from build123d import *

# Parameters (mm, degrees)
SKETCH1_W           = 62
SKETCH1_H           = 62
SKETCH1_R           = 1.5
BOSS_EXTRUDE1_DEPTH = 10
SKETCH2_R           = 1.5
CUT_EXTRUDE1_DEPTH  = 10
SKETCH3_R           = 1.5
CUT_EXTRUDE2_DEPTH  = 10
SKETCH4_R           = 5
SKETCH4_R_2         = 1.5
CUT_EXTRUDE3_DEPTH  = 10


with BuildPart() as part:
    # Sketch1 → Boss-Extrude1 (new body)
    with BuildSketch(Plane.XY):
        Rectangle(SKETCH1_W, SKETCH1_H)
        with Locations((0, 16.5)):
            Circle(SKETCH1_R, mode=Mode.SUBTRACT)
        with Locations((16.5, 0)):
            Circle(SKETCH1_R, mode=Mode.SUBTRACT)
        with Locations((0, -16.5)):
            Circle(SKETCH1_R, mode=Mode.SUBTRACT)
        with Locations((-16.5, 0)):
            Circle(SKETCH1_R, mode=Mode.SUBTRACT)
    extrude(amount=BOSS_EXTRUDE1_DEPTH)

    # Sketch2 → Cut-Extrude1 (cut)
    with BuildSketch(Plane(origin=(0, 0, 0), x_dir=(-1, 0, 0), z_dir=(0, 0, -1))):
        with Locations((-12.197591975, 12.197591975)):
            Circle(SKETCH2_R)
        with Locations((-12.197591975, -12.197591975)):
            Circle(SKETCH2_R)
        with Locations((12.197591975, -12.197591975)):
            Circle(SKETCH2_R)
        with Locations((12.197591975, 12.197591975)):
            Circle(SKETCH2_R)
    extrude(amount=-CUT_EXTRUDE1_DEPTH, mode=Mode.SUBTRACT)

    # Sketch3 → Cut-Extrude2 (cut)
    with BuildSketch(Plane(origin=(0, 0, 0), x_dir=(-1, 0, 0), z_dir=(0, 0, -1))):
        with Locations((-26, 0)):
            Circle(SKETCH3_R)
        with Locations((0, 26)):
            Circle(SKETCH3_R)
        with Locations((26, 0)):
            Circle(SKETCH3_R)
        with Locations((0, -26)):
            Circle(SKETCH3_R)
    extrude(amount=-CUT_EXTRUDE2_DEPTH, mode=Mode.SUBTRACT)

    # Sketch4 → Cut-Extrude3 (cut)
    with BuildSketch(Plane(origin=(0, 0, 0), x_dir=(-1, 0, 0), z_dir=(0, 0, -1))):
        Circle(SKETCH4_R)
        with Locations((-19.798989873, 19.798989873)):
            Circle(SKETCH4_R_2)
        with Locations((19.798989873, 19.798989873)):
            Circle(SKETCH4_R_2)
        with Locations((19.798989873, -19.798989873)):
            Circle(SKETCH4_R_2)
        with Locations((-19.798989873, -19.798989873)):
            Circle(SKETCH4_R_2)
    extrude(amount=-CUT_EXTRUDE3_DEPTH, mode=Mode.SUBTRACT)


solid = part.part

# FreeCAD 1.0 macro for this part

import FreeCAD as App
import Part
import Sketcher

V = App.Vector

doc = App.newDocument("Part")
body = doc.addObject("PartDesign::Body", "Body")

sketch1 = body.newObject("Sketcher::SketchObject", "Sketch")
sketch1.AttachmentSupport = (doc.getObject("XY_Plane"), [""])
sketch1.MapMode = "FlatFace"
sketch1.addGeometry(Part.LineSegment(V(-31, 31, 0), V(-31, -31, 0)), False)
sketch1.addGeometry(Part.LineSegment(V(-31, -31, 0), V(31, -31, 0)), False)
sketch1.addGeometry(Part.LineSegment(V(31, -31, 0), V(31, 31, 0)), False)
sketch1.addGeometry(Part.LineSegment(V(31, 31, 0), V(-31, 31, 0)), False)
sketch1.addGeometry(Part.Circle(V(0, -16.5, 0), V(0, 0, 1), 1.5), False)
sketch1.addGeometry(Part.Circle(V(-16.5, 0, 0), V(0, 0, 1), 1.5), False)
sketch1.addGeometry(Part.Circle(V(16.5, 0, 0), V(0, 0, 1), 1.5), False)
sketch1.addGeometry(Part.Circle(V(0, 16.5, 0), V(0, 0, 1), 1.5), False)
sketch1.addConstraint(Sketcher.Constraint("Coincident", 0, 2, 1, 1))
sketch1.addConstraint(Sketcher.Constraint("Coincident", 1, 2, 2, 1))
sketch1.addConstraint(Sketcher.Constraint("Coincident", 2, 2, 3, 1))
sketch1.addConstraint(Sketcher.Constraint("Coincident", 3, 2, 0, 1))
sketch1.addConstraint(Sketcher.Constraint("Vertical", 0))
sketch1.addConstraint(Sketcher.Constraint("Horizontal", 1))
sketch1.addConstraint(Sketcher.Constraint("Vertical", 2))
sketch1.addConstraint(Sketcher.Constraint("Horizontal", 3))
sketch1.addConstraint(Sketcher.Constraint("Equal", 4, 5))
sketch1.addConstraint(Sketcher.Constraint("Equal", 5, 6))
sketch1.addConstraint(Sketcher.Constraint("Equal", 6, 7))
sketch1.addConstraint(Sketcher.Constraint("Symmetric", 5, 3, 6, 3, -1, 1))
sketch1.addConstraint(Sketcher.Constraint("Symmetric", 4, 3, 7, 3, -1, 1))
sketch1.addConstraint(Sketcher.Constraint("Symmetric", 0, 2, 2, 2, -1, 1))
sketch1.addConstraint(Sketcher.Constraint("PointOnObject", 4, 3, -2))
sketch1.addConstraint(Sketcher.Constraint("PointOnObject", 5, 3, -1))
sketch1.addConstraint(Sketcher.Constraint("Equal", 3, 0))
sketch1.addConstraint(Sketcher.Constraint("Diameter", 4, 3.0))
sketch1.addConstraint(Sketcher.Constraint("DistanceX", 1, 1, 1, 2, 62.0))
sketch1.addConstraint(Sketcher.Constraint("DistanceX", 5, 3, 6, 3, 33.0))
sketch1.addConstraint(Sketcher.Constraint("DistanceY", 4, 3, 7, 3, 33.0))
pad1 = body.newObject("PartDesign::Pad", "Pad")
pad1.Profile = sketch1
pad1.Length = 10

sketch2 = body.newObject("Sketcher::SketchObject", "Sketch001")
sketch2.AttachmentSupport = (doc.getObject("XY_Plane"), [""])
sketch2.MapMode = "FlatFace"
sketch2.addGeometry(Part.Circle(V(12.2, 12.2, 0), V(0, 0, 1), 1.5), False)
sketch2.addGeometry(Part.Circle(V(12.2, -12.2, 0), V(0, 0, 1), 1.5), False)
sketch2.addGeometry(Part.Circle(V(-12.2, -12.2, 0), V(0, 0, 1), 1.5), False)
sketch2.addGeometry(Part.Circle(V(-12.2, 12.2, 0), V(0, 0, 1), 1.5), False)
sketch2.addConstraint(Sketcher.Constraint("Equal", 0, 1))
sketch2.addConstraint(Sketcher.Constraint("Equal", 1, 2))
sketch2.addConstraint(Sketcher.Constraint("Equal", 2, 3))
sketch2.addConstraint(Sketcher.Constraint("Symmetric", 0, 3, 2, 3, -1, 1))
sketch2.addConstraint(Sketcher.Constraint("Symmetric", 1, 3, 3, 3, -1, 1))
sketch2.addConstraint(Sketcher.Constraint("Symmetric", 1, 3, 2, 3, -2))
sketch2.addConstraint(Sketcher.Constraint("Diameter", 0, 3.0))
sketch2.addConstraint(Sketcher.Constraint("DistanceX", -1, 1, 0, 3, 12.197592))
sketch2.addConstraint(Sketcher.Constraint("DistanceY", -1, 1, 0, 3, 12.197592))
pocket1 = body.newObject("PartDesign::Pocket", "Pocket")
pocket1.Profile = sketch2
pocket1.Length = 10
pocket1.Reversed = True

sketch3 = body.newObject("Sketcher::SketchObject", "Sketch002")
sketch3.AttachmentSupport = (doc.getObject("XY_Plane"), [""])
sketch3.MapMode = "FlatFace"
sketch3.addGeometry(Part.Circle(V(26, 0, 0), V(0, 0, 1), 1.5), False)
sketch3.addGeometry(Part.Circle(V(0, 26, 0), V(0, 0, 1), 1.5), False)
sketch3.addGeometry(Part.Circle(V(-26, 0, 0), V(0, 0, 1), 1.5), False)
sketch3.addGeometry(Part.Circle(V(0, -26, 0), V(0, 0, 1), 1.5), False)
sketch3.addConstraint(Sketcher.Constraint("Equal", 0, 1))
sketch3.addConstraint(Sketcher.Constraint("Equal", 1, 2))
sketch3.addConstraint(Sketcher.Constraint("Equal", 2, 3))
sketch3.addConstraint(Sketcher.Constraint("Symmetric", 0, 3, 2, 3, -1, 1))
sketch3.addConstraint(Sketcher.Constraint("Symmetric", 1, 3, 3, 3, -1, 1))
sketch3.addConstraint(Sketcher.Constraint("PointOnObject", 0, 3, -1))
sketch3.addConstraint(Sketcher.Constraint("PointOnObject", 1, 3, -2))
sketch3.addConstraint(Sketcher.Constraint("Diameter", 0, 3.0))
sketch3.addConstraint(Sketcher.Constraint("DistanceX", -1, 1, 0, 3, 26.0))
sketch3.addConstraint(Sketcher.Constraint("DistanceY", -1, 1, 1, 3, 26.0))
pocket2 = body.newObject("PartDesign::Pocket", "Pocket001")
pocket2.Profile = sketch3
pocket2.Length = 10
pocket2.Reversed = True

sketch4 = body.newObject("Sketcher::SketchObject", "Sketch003")
sketch4.AttachmentSupport = (doc.getObject("XY_Plane"), [""])
sketch4.MapMode = "FlatFace"
sketch4.addGeometry(Part.Circle(V(0, 0, 0), V(0, 0, 1), 5), False)
sketch4.addGeometry(Part.Circle(V(19.8, 19.8, 0), V(0, 0, 1), 1.5), False)
sketch4.addGeometry(Part.Circle(V(-19.8, 19.8, 0), V(0, 0, 1), 1.5), False)
sketch4.addGeometry(Part.Circle(V(-19.8, -19.8, 0), V(0, 0, 1), 1.5), False)
sketch4.addGeometry(Part.Circle(V(19.8, -19.8, 0), V(0, 0, 1), 1.5), False)
sketch4.addConstraint(Sketcher.Constraint("Coincident", 0, 3, -1, 1))
sketch4.addConstraint(Sketcher.Constraint("Equal", 1, 2))
sketch4.addConstraint(Sketcher.Constraint("Equal", 2, 3))
sketch4.addConstraint(Sketcher.Constraint("Equal", 3, 4))
sketch4.addConstraint(Sketcher.Constraint("Symmetric", 1, 3, 3, 3, -1, 1))
sketch4.addConstraint(Sketcher.Constraint("Symmetric", 2, 3, 4, 3, -1, 1))
sketch4.addConstraint(Sketcher.Constraint("Symmetric", 1, 3, 2, 3, -2))
sketch4.addConstraint(Sketcher.Constraint("Diameter", 0, 10.0))
sketch4.addConstraint(Sketcher.Constraint("Diameter", 1, 3.0))
sketch4.addConstraint(Sketcher.Constraint("DistanceX", -1, 1, 1, 3, 19.79899))
sketch4.addConstraint(Sketcher.Constraint("DistanceY", -1, 1, 1, 3, 19.79899))
pocket3 = body.newObject("PartDesign::Pocket", "Pocket002")
pocket3.Profile = sketch4
pocket3.Length = 10
pocket3.Reversed = True

doc.recompute()
